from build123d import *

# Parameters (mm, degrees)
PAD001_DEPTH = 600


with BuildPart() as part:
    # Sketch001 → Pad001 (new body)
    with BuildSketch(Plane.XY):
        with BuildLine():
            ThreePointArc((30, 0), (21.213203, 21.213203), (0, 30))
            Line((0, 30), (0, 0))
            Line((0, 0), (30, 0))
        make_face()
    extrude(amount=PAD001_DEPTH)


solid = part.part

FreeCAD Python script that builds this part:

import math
import FreeCAD as App
import Part
import Sketcher
Q = App.Units.Quantity

doc = App.newDocument("Part")
params = doc.addObject("Spreadsheet::Sheet", "Params")
for row, (alias, value) in enumerate([
    ("sketch1_radius", "30.000001 mm"),
    ("pad1_length", "600 mm"),
], start=1):
    params.set(f"A{row}", alias)
    params.set(f"B{row}", "=" + value)
    params.setAlias(f"B{row}", alias)

body = doc.addObject("PartDesign::Body", "Body")

# Sketch on XY plane
sketch1 = doc.addObject("Sketcher::SketchObject", "Sketch")
body.addObject(sketch1)
sketch1.AttachmentSupport = (doc.XY_Plane, [""])
sketch1.MapMode = "FlatFace"
sketch1.addGeometry(Part.ArcOfCircle(Part.Circle(App.Vector(-0.000001, -0.000001, 0), App.Vector(0, 0, 1), 30.000001), math.radians(0.000003), math.radians(89.999997)), False)
sketch1.addGeometry(Part.LineSegment(App.Vector(0, 30, 0), App.Vector(0, 0, 0)), False)
sketch1.addGeometry(Part.LineSegment(App.Vector(0, 0, 0), App.Vector(30, 0, 0)), False)
sketch1.addConstraint(Sketcher.Constraint("Coincident", 0, 2, 1, 1))
sketch1.addConstraint(Sketcher.Constraint("Coincident", 1, 2, 2, 1))
sketch1.addConstraint(Sketcher.Constraint("Coincident", 2, 2, 0, 1))
sketch1.addConstraint(Sketcher.Constraint("Vertical", 1))
sketch1.addConstraint(Sketcher.Constraint("Horizontal", 2))
sketch1.addConstraint(Sketcher.Constraint("Coincident", 0, 3, -1, 1))
sketch1.addConstraint(Sketcher.Constraint("Coincident", 1, 2, -1, 1))
sketch1.addConstraint(Sketcher.Constraint("Radius", 0, Q("30.000001 mm")))
sketch1.setExpression("Constraints[7]", "Params.sketch1_radius")
pad1 = doc.addObject("PartDesign::Pad", "Pad")
body.addObject(pad1)
pad1.Profile = sketch1
pad1.setExpression("Length", "Params.pad1_length")

doc.recompute()
